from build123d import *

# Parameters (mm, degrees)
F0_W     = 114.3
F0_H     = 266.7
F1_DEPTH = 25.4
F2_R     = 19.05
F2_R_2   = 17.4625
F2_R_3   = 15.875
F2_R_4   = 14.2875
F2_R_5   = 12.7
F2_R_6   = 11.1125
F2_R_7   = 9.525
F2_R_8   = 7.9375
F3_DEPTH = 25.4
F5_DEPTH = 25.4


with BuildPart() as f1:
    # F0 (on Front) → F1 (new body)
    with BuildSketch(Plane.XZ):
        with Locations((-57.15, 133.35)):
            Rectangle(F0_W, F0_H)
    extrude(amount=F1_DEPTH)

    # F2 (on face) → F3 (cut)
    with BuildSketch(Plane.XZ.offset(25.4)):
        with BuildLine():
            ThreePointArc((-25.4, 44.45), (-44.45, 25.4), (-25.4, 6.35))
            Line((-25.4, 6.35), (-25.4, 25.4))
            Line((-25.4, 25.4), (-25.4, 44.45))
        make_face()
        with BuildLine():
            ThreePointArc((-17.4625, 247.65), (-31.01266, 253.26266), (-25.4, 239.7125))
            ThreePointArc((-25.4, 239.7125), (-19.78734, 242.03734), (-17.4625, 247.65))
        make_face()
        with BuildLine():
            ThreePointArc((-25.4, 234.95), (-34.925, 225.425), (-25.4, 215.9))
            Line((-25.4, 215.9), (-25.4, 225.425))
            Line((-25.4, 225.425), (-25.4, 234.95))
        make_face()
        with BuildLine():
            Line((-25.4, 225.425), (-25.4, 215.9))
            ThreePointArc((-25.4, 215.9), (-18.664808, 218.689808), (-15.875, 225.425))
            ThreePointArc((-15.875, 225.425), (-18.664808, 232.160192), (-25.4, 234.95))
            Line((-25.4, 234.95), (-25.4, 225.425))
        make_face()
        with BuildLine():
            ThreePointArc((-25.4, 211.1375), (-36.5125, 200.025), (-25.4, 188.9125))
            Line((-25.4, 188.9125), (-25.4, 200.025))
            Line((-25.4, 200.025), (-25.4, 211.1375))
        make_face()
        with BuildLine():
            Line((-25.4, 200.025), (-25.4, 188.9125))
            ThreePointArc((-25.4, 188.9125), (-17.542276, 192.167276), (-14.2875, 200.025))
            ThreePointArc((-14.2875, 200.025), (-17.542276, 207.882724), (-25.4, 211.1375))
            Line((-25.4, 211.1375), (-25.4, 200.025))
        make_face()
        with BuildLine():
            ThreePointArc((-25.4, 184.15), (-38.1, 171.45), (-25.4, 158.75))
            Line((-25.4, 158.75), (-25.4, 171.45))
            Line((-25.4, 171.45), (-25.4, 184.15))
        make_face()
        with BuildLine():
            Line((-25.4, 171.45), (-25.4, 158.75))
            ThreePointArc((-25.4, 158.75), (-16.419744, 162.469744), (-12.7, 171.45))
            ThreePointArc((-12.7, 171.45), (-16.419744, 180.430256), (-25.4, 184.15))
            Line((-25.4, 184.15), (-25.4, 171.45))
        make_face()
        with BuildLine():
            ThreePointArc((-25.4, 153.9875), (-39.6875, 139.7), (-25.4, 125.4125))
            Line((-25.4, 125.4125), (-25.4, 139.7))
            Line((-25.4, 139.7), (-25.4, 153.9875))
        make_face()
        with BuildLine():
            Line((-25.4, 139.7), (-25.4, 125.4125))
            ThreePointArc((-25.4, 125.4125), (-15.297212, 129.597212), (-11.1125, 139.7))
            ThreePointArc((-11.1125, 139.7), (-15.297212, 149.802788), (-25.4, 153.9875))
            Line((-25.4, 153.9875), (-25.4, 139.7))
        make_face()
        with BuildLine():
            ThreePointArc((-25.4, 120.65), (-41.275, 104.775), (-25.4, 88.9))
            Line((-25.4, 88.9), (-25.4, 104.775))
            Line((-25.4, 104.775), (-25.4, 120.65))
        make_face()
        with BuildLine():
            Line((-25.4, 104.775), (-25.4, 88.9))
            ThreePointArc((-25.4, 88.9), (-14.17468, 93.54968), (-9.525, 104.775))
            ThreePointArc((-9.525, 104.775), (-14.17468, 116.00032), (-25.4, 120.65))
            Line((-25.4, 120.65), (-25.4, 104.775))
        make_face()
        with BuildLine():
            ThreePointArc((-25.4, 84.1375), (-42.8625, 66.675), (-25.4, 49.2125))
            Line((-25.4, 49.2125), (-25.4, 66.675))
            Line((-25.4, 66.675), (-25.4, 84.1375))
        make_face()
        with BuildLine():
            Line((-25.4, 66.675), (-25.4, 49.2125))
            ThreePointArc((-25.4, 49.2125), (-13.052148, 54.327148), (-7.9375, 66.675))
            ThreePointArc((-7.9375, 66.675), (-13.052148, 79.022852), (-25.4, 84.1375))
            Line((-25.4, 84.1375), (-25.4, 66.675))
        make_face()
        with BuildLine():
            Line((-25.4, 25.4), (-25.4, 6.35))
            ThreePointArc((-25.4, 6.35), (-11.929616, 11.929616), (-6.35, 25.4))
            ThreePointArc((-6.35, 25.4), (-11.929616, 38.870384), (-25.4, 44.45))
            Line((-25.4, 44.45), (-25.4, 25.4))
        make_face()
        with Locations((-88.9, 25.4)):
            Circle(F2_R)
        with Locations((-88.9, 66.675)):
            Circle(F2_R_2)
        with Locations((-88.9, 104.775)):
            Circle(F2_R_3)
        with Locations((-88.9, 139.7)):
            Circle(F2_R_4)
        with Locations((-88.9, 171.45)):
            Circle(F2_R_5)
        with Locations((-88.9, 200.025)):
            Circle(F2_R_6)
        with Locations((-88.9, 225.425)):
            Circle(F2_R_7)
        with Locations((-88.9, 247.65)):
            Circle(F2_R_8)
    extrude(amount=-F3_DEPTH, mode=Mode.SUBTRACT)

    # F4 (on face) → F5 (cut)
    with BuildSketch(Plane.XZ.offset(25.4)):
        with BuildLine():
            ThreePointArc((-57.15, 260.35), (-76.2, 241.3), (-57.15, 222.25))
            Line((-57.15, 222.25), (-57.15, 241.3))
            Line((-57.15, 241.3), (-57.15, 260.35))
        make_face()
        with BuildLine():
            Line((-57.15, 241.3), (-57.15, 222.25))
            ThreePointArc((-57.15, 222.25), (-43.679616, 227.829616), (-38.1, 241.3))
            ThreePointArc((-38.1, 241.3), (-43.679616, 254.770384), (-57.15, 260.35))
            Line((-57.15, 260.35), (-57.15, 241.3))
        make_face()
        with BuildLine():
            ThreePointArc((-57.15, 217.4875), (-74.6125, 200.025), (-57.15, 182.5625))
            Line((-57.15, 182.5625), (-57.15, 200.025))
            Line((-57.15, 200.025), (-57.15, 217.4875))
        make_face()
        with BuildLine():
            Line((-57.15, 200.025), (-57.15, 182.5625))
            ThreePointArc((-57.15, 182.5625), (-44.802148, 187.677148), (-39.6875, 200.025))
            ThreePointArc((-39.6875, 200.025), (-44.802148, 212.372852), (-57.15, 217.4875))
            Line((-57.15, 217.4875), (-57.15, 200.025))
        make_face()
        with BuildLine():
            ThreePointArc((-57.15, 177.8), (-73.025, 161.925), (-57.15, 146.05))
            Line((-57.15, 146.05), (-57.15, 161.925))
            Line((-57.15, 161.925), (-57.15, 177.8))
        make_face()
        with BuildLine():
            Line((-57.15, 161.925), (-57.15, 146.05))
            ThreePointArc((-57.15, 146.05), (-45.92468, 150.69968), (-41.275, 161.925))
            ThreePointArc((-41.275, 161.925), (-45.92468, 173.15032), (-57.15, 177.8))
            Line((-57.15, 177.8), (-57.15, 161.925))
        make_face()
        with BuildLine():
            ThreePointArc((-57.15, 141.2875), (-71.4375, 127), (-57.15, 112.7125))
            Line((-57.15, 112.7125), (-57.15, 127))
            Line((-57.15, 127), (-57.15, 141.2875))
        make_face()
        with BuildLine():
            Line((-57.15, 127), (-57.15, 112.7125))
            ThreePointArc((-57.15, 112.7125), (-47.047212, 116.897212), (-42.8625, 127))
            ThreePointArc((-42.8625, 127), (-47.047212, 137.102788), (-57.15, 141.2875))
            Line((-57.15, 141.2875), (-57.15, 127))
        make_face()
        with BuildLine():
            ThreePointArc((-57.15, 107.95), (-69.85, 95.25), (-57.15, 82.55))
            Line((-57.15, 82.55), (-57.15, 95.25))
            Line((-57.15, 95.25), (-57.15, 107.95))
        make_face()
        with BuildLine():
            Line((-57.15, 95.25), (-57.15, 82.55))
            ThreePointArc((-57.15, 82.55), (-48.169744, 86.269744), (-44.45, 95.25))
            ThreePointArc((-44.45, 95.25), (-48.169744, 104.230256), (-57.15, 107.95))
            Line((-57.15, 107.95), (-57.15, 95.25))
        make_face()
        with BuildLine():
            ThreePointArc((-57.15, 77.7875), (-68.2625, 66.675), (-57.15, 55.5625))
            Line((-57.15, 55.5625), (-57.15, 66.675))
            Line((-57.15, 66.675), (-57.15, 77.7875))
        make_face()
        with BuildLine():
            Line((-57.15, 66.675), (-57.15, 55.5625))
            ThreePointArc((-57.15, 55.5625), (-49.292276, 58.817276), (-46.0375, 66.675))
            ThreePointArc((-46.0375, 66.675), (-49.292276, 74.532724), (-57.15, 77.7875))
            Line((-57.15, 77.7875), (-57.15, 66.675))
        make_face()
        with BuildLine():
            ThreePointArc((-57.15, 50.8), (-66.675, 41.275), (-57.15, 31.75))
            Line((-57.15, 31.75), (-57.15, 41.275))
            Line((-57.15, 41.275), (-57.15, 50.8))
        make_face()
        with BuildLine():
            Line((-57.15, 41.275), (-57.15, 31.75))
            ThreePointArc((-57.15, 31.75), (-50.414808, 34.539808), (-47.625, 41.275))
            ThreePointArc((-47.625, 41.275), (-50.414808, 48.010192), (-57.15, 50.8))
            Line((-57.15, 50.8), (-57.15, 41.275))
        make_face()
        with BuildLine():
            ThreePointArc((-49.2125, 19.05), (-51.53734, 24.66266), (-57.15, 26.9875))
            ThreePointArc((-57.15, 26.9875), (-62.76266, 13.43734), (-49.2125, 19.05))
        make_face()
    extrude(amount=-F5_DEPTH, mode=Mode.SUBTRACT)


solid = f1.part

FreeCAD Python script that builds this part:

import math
import FreeCAD as App
import Part
import Sketcher
Q = App.Units.Quantity


def add_polygon(sketch, points):
    """Adds a closed chain of lines whose ends are joined by coincident constraints."""
    first, n = sketch.GeometryCount, len(points)
    for a, b in zip(points, points[1:] + points[:1]):
        sketch.addGeometry(Part.LineSegment(App.Vector(*a, 0), App.Vector(*b, 0)), False)
    for i in range(n):
        sketch.addConstraint(Sketcher.Constraint("Coincident", first + i, 2, first + (i + 1) % n, 1))

doc = App.newDocument("Part")
body = doc.addObject("PartDesign::Body", "Body")

sketch1 = body.newObject("Sketcher::SketchObject", "Sketch")
sketch1.AttachmentSupport = (doc.getObject("XZ_Plane"), [""])
sketch1.MapMode = "FlatFace"
add_polygon(sketch1, [(-114, 267), (-114, 0), (0, 0), (0, 267)])
sketch1.addConstraint([
    Sketcher.Constraint("Vertical", 0),
    Sketcher.Constraint("Horizontal", 1),
    Sketcher.Constraint("Vertical", 2),
    Sketcher.Constraint("Horizontal", 3),
    Sketcher.Constraint("Coincident", 1, 2, -1, 1),
    Sketcher.Constraint("DistanceX", 1, 1, 1, 2, Q("4.5 in")),
    Sketcher.Constraint("DistanceY", 0, 2, 0, 1, Q("10.5 in")),
])
pad1 = body.newObject("PartDesign::Pad", "Pad")
pad1.Profile = sketch1
pad1.Length = Q("1 in")

sketch2 = body.newObject("Sketcher::SketchObject", "Sketch001")
sketch2.AttachmentSupport = (doc.getObject("XZ_Plane"), [""])
sketch2.MapMode = "FlatFace"
sketch2.AttachmentOffset = App.Placement(App.Vector(0, 0, 1 * 25.4), App.Rotation())
sketch2.addGeometry([
    Part.ArcOfCircle(Part.Circle(App.Vector(-25, 25, 0), App.Vector(0, 0, 1), 19), math.radians(90), math.radians(270)),
    Part.ArcOfCircle(Part.Circle(App.Vector(-25, 25, 0), App.Vector(0, 0, 1), 19), math.radians(-90), math.radians(0)),
    Part.ArcOfCircle(Part.Circle(App.Vector(-25, 25, 0), App.Vector(0, 0, 1), 19), math.radians(0), math.radians(90)),
    Part.ArcOfCircle(Part.Circle(App.Vector(-25, 248, 0), App.Vector(0, 0, 1), 8), math.radians(0), math.radians(270)),
    Part.ArcOfCircle(Part.Circle(App.Vector(-25, 248, 0), App.Vector(0, 0, 1), 8), math.radians(-90), math.radians(0)),
    Part.ArcOfCircle(Part.Circle(App.Vector(-25, 225, 0), App.Vector(0, 0, 1), 10), math.radians(90), math.radians(270)),
    Part.ArcOfCircle(Part.Circle(App.Vector(-25, 225, 0), App.Vector(0, 0, 1), 10), math.radians(-90), math.radians(0)),
    Part.ArcOfCircle(Part.Circle(App.Vector(-25, 225, 0), App.Vector(0, 0, 1), 10), math.radians(0), math.radians(90)),
    Part.ArcOfCircle(Part.Circle(App.Vector(-25, 200, 0), App.Vector(0, 0, 1), 11), math.radians(90), math.radians(270)),
    Part.ArcOfCircle(Part.Circle(App.Vector(-25, 200, 0), App.Vector(0, 0, 1), 11), math.radians(-90), math.radians(0)),
    Part.ArcOfCircle(Part.Circle(App.Vector(-25, 200, 0), App.Vector(0, 0, 1), 11), math.radians(0), math.radians(90)),
    Part.ArcOfCircle(Part.Circle(App.Vector(-25, 171, 0), App.Vector(0, 0, 1), 13), math.radians(90), math.radians(270)),
    Part.ArcOfCircle(Part.Circle(App.Vector(-25, 171, 0), App.Vector(0, 0, 1), 13), math.radians(-90), math.radians(0)),
    Part.ArcOfCircle(Part.Circle(App.Vector(-25, 171, 0), App.Vector(0, 0, 1), 13), math.radians(0), math.radians(90)),
    Part.ArcOfCircle(Part.Circle(App.Vector(-25, 140, 0), App.Vector(0, 0, 1), 14), math.radians(90), math.radians(270)),
    Part.ArcOfCircle(Part.Circle(App.Vector(-25, 140, 0), App.Vector(0, 0, 1), 14), math.radians(-90), math.radians(0)),
    Part.ArcOfCircle(Part.Circle(App.Vector(-25, 140, 0), App.Vector(0, 0, 1), 14), math.radians(0), math.radians(90)),
    Part.ArcOfCircle(Part.Circle(App.Vector(-25, 105, 0), App.Vector(0, 0, 1), 16), math.radians(90), math.radians(270)),
    Part.ArcOfCircle(Part.Circle(App.Vector(-25, 105, 0), App.Vector(0, 0, 1), 16), math.radians(-90), math.radians(0)),
    Part.ArcOfCircle(Part.Circle(App.Vector(-25, 105, 0), App.Vector(0, 0, 1), 16), math.radians(0), math.radians(90)),
    Part.ArcOfCircle(Part.Circle(App.Vector(-25, 67, 0), App.Vector(0, 0, 1), 17), math.radians(90), math.radians(270)),
    Part.ArcOfCircle(Part.Circle(App.Vector(-25, 67, 0), App.Vector(0, 0, 1), 17), math.radians(-90), math.radians(0)),
    Part.ArcOfCircle(Part.Circle(App.Vector(-25, 67, 0), App.Vector(0, 0, 1), 17), math.radians(0), math.radians(90)),
    Part.Circle(App.Vector(-89, 25, 0), App.Vector(0, 0, 1), 19),
    Part.Circle(App.Vector(-89, 67, 0), App.Vector(0, 0, 1), 17),
    Part.Circle(App.Vector(-89, 105, 0), App.Vector(0, 0, 1), 16),
    Part.Circle(App.Vector(-89, 140, 0), App.Vector(0, 0, 1), 14),
    Part.Circle(App.Vector(-89, 171, 0), App.Vector(0, 0, 1), 13),
    Part.Circle(App.Vector(-89, 200, 0), App.Vector(0, 0, 1), 11),
    Part.Circle(App.Vector(-89, 225, 0), App.Vector(0, 0, 1), 10),
    Part.Circle(App.Vector(-89, 248, 0), App.Vector(0, 0, 1), 8),
], False)
sketch2.addConstraint([
    Sketcher.Constraint("Tangent", 0, 2, 1, 1),
    Sketcher.Constraint("Tangent", 1, 2, 2, 1),
    Sketcher.Constraint("Tangent", 2, 2, 0, 1),
    Sketcher.Constraint("Tangent", 3, 1, 4, 2),
    Sketcher.Constraint("Coincident", 4, 1, 3, 2),
    Sketcher.Constraint("Tangent", 5, 2, 6, 1),
    Sketcher.Constraint("Tangent", 6, 2, 7, 1),
    Sketcher.Constraint("Tangent", 7, 2, 5, 1),
    Sketcher.Constraint("Tangent", 8, 2, 9, 1),
    Sketcher.Constraint("Tangent", 9, 2, 10, 1),
    Sketcher.Constraint("Tangent", 10, 2, 8, 1),
    Sketcher.Constraint("Tangent", 11, 2, 12, 1),
    Sketcher.Constraint("Tangent", 12, 2, 13, 1),
    Sketcher.Constraint("Tangent", 13, 2, 11, 1),
    Sketcher.Constraint("Tangent", 14, 2, 15, 1),
    Sketcher.Constraint("Tangent", 15, 2, 16, 1),
    Sketcher.Constraint("Tangent", 16, 2, 14, 1),
    Sketcher.Constraint("Tangent", 17, 2, 18, 1),
    Sketcher.Constraint("Tangent", 18, 2, 19, 1),
    Sketcher.Constraint("Tangent", 19, 2, 17, 1),
    Sketcher.Constraint("Tangent", 20, 2, 21, 1),
    Sketcher.Constraint("Tangent", 21, 2, 22, 1),
    Sketcher.Constraint("Tangent", 22, 2, 20, 1),
    Sketcher.Constraint("Equal", 2, 23),
    Sketcher.Constraint("Equal", 22, 24),
    Sketcher.Constraint("Equal", 19, 25),
    Sketcher.Constraint("Equal", 16, 26),
    Sketcher.Constraint("Equal", 13, 27),
    Sketcher.Constraint("Equal", 10, 28),
    Sketcher.Constraint("Equal", 7, 29),
    Sketcher.Constraint("Equal", 4, 30),
    Sketcher.Constraint("Horizontal", 2, 3, 23, 3),
    Sketcher.Constraint("Horizontal", 22, 3, 24, 3),
    Sketcher.Constraint("Horizontal", 19, 3, 25, 3),
    Sketcher.Constraint("Horizontal", 16, 3, 26, 3),
    Sketcher.Constraint("Horizontal", 13, 3, 27, 3),
    Sketcher.Constraint("Horizontal", 10, 3, 28, 3),
    Sketcher.Constraint("Horizontal", 7, 3, 29, 3),
    Sketcher.Constraint("Horizontal", 4, 3, 30, 3),
    Sketcher.Constraint("Horizontal", 23, 3, 1, 2),
    Sketcher.Constraint("Horizontal", 30, 3, 3, 1),
    Sketcher.Constraint("Horizontal", 29, 3, 6, 2),
    Sketcher.Constraint("Horizontal", 28, 3, 9, 2),
    Sketcher.Constraint("Horizontal", 27, 3, 12, 2),
    Sketcher.Constraint("Horizontal", 26, 3, 15, 2),
    Sketcher.Constraint("Horizontal", 25, 3, 18, 2),
    Sketcher.Constraint("Horizontal", 24, 3, 21, 2),
    Sketcher.Constraint("Vertical", 2, 3, 3, 3),
    Sketcher.Constraint("Vertical", 4, 3, 5, 3),
    Sketcher.Constraint("Vertical", 7, 3, 8, 3),
    Sketcher.Constraint("Vertical", 10, 3, 11, 3),
    Sketcher.Constraint("Vertical", 13, 3, 14, 3),
    Sketcher.Constraint("Vertical", 16, 3, 17, 3),
    Sketcher.Constraint("Vertical", 19, 3, 20, 3),
    Sketcher.Constraint("Vertical", 23, 3, 24, 3),
    Sketcher.Constraint("Vertical", 24, 3, 25, 3),
    Sketcher.Constraint("Vertical", 25, 3, 26, 3),
    Sketcher.Constraint("Vertical", 26, 3, 27, 3),
    Sketcher.Constraint("Vertical", 27, 3, 28, 3),
    Sketcher.Constraint("Vertical", 28, 3, 29, 3),
    Sketcher.Constraint("Vertical", 29, 3, 30, 3),
    Sketcher.Constraint("Vertical", 22, 3, 0, 2),
    Sketcher.Constraint("Vertical", 0, 2, 2, 2),
    Sketcher.Constraint("Vertical", 2, 2, 4, 1),
    Sketcher.Constraint("Vertical", 4, 1, 5, 2),
    Sketcher.Constraint("Vertical", 5, 2, 7, 2),
    Sketcher.Constraint("Vertical", 7, 2, 8, 2),
    Sketcher.Constraint("Vertical", 8, 2, 10, 2),
    Sketcher.Constraint("Vertical", 10, 2, 11, 2),
    Sketcher.Constraint("Vertical", 11, 2, 13, 2),
    Sketcher.Constraint("Vertical", 13, 2, 14, 2),
    Sketcher.Constraint("Vertical", 14, 2, 16, 2),
    Sketcher.Constraint("Vertical", 16, 2, 17, 2),
    Sketcher.Constraint("Vertical", 17, 2, 19, 2),
    Sketcher.Constraint("Vertical", 19, 2, 20, 2),
    Sketcher.Constraint("Vertical", 20, 2, 22, 2),
    Sketcher.Constraint("Diameter", 27, Q("1 in")),
    Sketcher.Constraint("Diameter", 23, Q("1.5 in")),
    Sketcher.Constraint("Diameter", 25, Q("1.25 in")),
    Sketcher.Constraint("Diameter", 29, Q("0.75 in")),
    Sketcher.Constraint("Diameter", 24, Q("1.375 in")),
    Sketcher.Constraint("Diameter", 26, Q("1.125 in")),
    Sketcher.Constraint("Diameter", 28, Q("0.875 in")),
    Sketcher.Constraint("Diameter", 30, Q("0.625 in")),
    Sketcher.Constraint("DistanceX", 0, 3, -1, 1, Q("1 in")),
    Sketcher.Constraint("DistanceY", -1, 1, 0, 3, Q("1 in")),
    Sketcher.Constraint("DistanceY", 8, 3, 7, 3, Q("1 in")),
    Sketcher.Constraint("DistanceY", -1, 1, 14, 3, Q("5.5 in")),
    Sketcher.Constraint("DistanceX", 23, 3, -1, 1, Q("3.5 in")),
    Sketcher.Constraint("DistanceY", -1, 1, 5, 2, Q("8.5 in")),
    Sketcher.Constraint("DistanceY", -1, 1, 17, 2, Q("3.5 in")),
    Sketcher.Constraint("DistanceY", 20, 3, 19, 3, Q("1.5 in")),
    Sketcher.Constraint("DistanceY", 7, 2, 3, 3, Q("0.5 in")),
    Sketcher.Constraint("DistanceY", -1, 1, 11, 3, Q("6.75 in")),
])
pocket1 = body.newObject("PartDesign::Pocket", "Pocket")
pocket1.Profile = sketch2
pocket1.Length = Q("1 in")

sketch3 = body.newObject("Sketcher::SketchObject", "Sketch002")
sketch3.AttachmentSupport = (doc.getObject("XZ_Plane"), [""])
sketch3.MapMode = "FlatFace"
sketch3.AttachmentOffset = App.Placement(App.Vector(0, 0, 1 * 25.4), App.Rotation())
sketch3.addGeometry([
    Part.ArcOfCircle(Part.Circle(App.Vector(-57, 241, 0), App.Vector(0, 0, 1), 19), math.radians(90), math.radians(270)),
    Part.ArcOfCircle(Part.Circle(App.Vector(-57, 241, 0), App.Vector(0, 0, 1), 19), math.radians(-90), math.radians(0)),
    Part.ArcOfCircle(Part.Circle(App.Vector(-57, 241, 0), App.Vector(0, 0, 1), 19), math.radians(0), math.radians(90)),
    Part.ArcOfCircle(Part.Circle(App.Vector(-57, 200, 0), App.Vector(0, 0, 1), 17), math.radians(90), math.radians(270)),
    Part.ArcOfCircle(Part.Circle(App.Vector(-57, 200, 0), App.Vector(0, 0, 1), 17), math.radians(-90), math.radians(0)),
    Part.ArcOfCircle(Part.Circle(App.Vector(-57, 200, 0), App.Vector(0, 0, 1), 17), math.radians(0), math.radians(90)),
    Part.ArcOfCircle(Part.Circle(App.Vector(-57, 162, 0), App.Vector(0, 0, 1), 16), math.radians(90), math.radians(270)),
    Part.ArcOfCircle(Part.Circle(App.Vector(-57, 162, 0), App.Vector(0, 0, 1), 16), math.radians(-90), math.radians(0)),
    Part.ArcOfCircle(Part.Circle(App.Vector(-57, 162, 0), App.Vector(0, 0, 1), 16), math.radians(0), math.radians(90)),
    Part.ArcOfCircle(Part.Circle(App.Vector(-57, 127, 0), App.Vector(0, 0, 1), 14), math.radians(90), math.radians(270)),
    Part.ArcOfCircle(Part.Circle(App.Vector(-57, 127, 0), App.Vector(0, 0, 1), 14), math.radians(-90), math.radians(0)),
    Part.ArcOfCircle(Part.Circle(App.Vector(-57, 127, 0), App.Vector(0, 0, 1), 14), math.radians(0), math.radians(90)),
    Part.ArcOfCircle(Part.Circle(App.Vector(-57, 95, 0), App.Vector(0, 0, 1), 13), math.radians(90), math.radians(270)),
    Part.ArcOfCircle(Part.Circle(App.Vector(-57, 95, 0), App.Vector(0, 0, 1), 13), math.radians(-90), math.radians(0)),
    Part.ArcOfCircle(Part.Circle(App.Vector(-57, 95, 0), App.Vector(0, 0, 1), 13), math.radians(0), math.radians(90)),
    Part.ArcOfCircle(Part.Circle(App.Vector(-57, 67, 0), App.Vector(0, 0, 1), 11), math.radians(90), math.radians(270)),
    Part.ArcOfCircle(Part.Circle(App.Vector(-57, 67, 0), App.Vector(0, 0, 1), 11), math.radians(-90), math.radians(0)),
    Part.ArcOfCircle(Part.Circle(App.Vector(-57, 67, 0), App.Vector(0, 0, 1), 11), math.radians(0), math.radians(90)),
    Part.ArcOfCircle(Part.Circle(App.Vector(-57, 41, 0), App.Vector(0, 0, 1), 10), math.radians(90), math.radians(270)),
    Part.ArcOfCircle(Part.Circle(App.Vector(-57, 41, 0), App.Vector(0, 0, 1), 10), math.radians(-90), math.radians(0)),
    Part.ArcOfCircle(Part.Circle(App.Vector(-57, 41, 0), App.Vector(0, 0, 1), 10), math.radians(0), math.radians(90)),
    Part.ArcOfCircle(Part.Circle(App.Vector(-57, 19, 0), App.Vector(0, 0, 1), 8), math.radians(0), math.radians(90)),
    Part.ArcOfCircle(Part.Circle(App.Vector(-57, 19, 0), App.Vector(0, 0, 1), 8), math.radians(90), math.radians(360)),
], False)
sketch3.addConstraint([
    Sketcher.Constraint("Tangent", 0, 2, 1, 1),
    Sketcher.Constraint("Tangent", 1, 2, 2, 1),
    Sketcher.Constraint("Tangent", 2, 2, 0, 1),
    Sketcher.Constraint("Tangent", 3, 2, 4, 1),
    Sketcher.Constraint("Tangent", 4, 2, 5, 1),
    Sketcher.Constraint("Tangent", 5, 2, 3, 1),
    Sketcher.Constraint("Tangent", 6, 2, 7, 1),
    Sketcher.Constraint("Tangent", 7, 2, 8, 1),
    Sketcher.Constraint("Tangent", 8, 2, 6, 1),
    Sketcher.Constraint("Tangent", 9, 2, 10, 1),
    Sketcher.Constraint("Tangent", 10, 2, 11, 1),
    Sketcher.Constraint("Tangent", 11, 2, 9, 1),
    Sketcher.Constraint("Tangent", 12, 2, 13, 1),
    Sketcher.Constraint("Tangent", 13, 2, 14, 1),
    Sketcher.Constraint("Tangent", 14, 2, 12, 1),
    Sketcher.Constraint("Tangent", 15, 2, 16, 1),
    Sketcher.Constraint("Tangent", 16, 2, 17, 1),
    Sketcher.Constraint("Tangent", 17, 2, 15, 1),
    Sketcher.Constraint("Tangent", 18, 2, 19, 1),
    Sketcher.Constraint("Tangent", 19, 2, 20, 1),
    Sketcher.Constraint("Tangent", 20, 2, 18, 1),
    Sketcher.Constraint("Tangent", 21, 1, 22, 2),
    Sketcher.Constraint("Coincident", 22, 1, 21, 2),
    Sketcher.Constraint("Horizontal", 2, 3, 1, 2),
    Sketcher.Constraint("Horizontal", 5, 3, 4, 2),
    Sketcher.Constraint("Horizontal", 8, 3, 7, 2),
    Sketcher.Constraint("Horizontal", 11, 3, 10, 2),
    Sketcher.Constraint("Horizontal", 14, 3, 13, 2),
    Sketcher.Constraint("Horizontal", 17, 3, 16, 2),
    Sketcher.Constraint("Horizontal", 20, 3, 19, 2),
    Sketcher.Constraint("Horizontal", 22, 3, 21, 1),
    Sketcher.Constraint("Vertical", 2, 3, 3, 3),
    Sketcher.Constraint("Vertical", 5, 3, 6, 3),
    Sketcher.Constraint("Vertical", 8, 3, 9, 3),
    Sketcher.Constraint("Vertical", 11, 3, 12, 3),
    Sketcher.Constraint("Vertical", 14, 3, 15, 3),
    Sketcher.Constraint("Vertical", 17, 3, 18, 3),
    Sketcher.Constraint("Vertical", 20, 3, 21, 3),
    Sketcher.Constraint("Vertical", 22, 3, 0, 2),
    Sketcher.Constraint("Vertical", 0, 2, 2, 2),
    Sketcher.Constraint("Vertical", 2, 2, 3, 2),
    Sketcher.Constraint("Vertical", 3, 2, 5, 2),
    Sketcher.Constraint("Vertical", 5, 2, 6, 2),
    Sketcher.Constraint("Vertical", 6, 2, 8, 2),
    Sketcher.Constraint("Vertical", 8, 2, 9, 2),
    Sketcher.Constraint("Vertical", 9, 2, 11, 2),
    Sketcher.Constraint("Vertical", 11, 2, 12, 2),
    Sketcher.Constraint("Vertical", 12, 2, 14, 2),
    Sketcher.Constraint("Vertical", 14, 2, 15, 2),
    Sketcher.Constraint("Vertical", 15, 2, 17, 2),
    Sketcher.Constraint("Vertical", 17, 2, 18, 2),
    Sketcher.Constraint("Vertical", 18, 2, 20, 2),
    Sketcher.Constraint("Vertical", 20, 2, 22, 1),
    Sketcher.Constraint("Radius", 12, Q("0.5 in")),
    Sketcher.Constraint("Radius", 0, Q("0.75 in")),
    Sketcher.Constraint("DistanceY", -1, 1, 9, 3, Q("5 in")),
    Sketcher.Constraint("DistanceY", -1, 1, 8, 2, Q("7 in")),
    Sketcher.Constraint("DistanceY", -1, 1, 20, 2, Q("2 in")),
    Sketcher.Constraint("Radius", 3, Q("0.6875 in")),
    Sketcher.Constraint("Radius", 6, Q("0.625 in")),
    Sketcher.Constraint("Radius", 9, Q("0.5625 in")),
    Sketcher.Constraint("Radius", 15, Q("0.4375 in")),
    Sketcher.Constraint("Radius", 18, Q("0.375 in")),
    Sketcher.Constraint("Radius", 21, Q("0.3125 in")),
    Sketcher.Constraint("DistanceY", 18, 3, 17, 3, Q("1 in")),
    Sketcher.Constraint("DistanceY", -1, 1, 0, 3, Q("9.5 in")),
    Sketcher.Constraint("DistanceX", 1, 2, -1, 1, Q("1.5 in")),
    Sketcher.Constraint("DistanceY", 6, 3, 5, 3, Q("1.5 in")),
    Sketcher.Constraint("DistanceY", 22, 3, 18, 2, Q("0.5 in")),
    Sketcher.Constraint("DistanceY", -1, 1, 12, 3, Q("3.75 in")),
])
pocket2 = body.newObject("PartDesign::Pocket", "Pocket001")
pocket2.Profile = sketch3
pocket2.Length = Q("1 in")

doc.recompute()
